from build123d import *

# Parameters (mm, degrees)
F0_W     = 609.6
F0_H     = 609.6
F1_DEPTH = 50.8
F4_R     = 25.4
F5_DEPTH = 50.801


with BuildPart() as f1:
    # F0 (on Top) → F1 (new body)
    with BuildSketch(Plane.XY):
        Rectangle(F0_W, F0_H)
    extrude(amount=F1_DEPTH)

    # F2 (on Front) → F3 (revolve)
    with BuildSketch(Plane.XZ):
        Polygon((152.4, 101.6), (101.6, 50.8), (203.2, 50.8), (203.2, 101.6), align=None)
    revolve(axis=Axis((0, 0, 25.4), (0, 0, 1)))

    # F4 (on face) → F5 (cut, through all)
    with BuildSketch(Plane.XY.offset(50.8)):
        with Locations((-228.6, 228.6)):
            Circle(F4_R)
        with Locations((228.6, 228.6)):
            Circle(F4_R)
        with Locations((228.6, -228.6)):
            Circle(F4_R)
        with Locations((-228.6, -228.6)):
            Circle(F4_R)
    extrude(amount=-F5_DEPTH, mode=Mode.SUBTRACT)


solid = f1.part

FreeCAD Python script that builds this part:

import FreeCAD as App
import Part
import Sketcher
Q = App.Units.Quantity

doc = App.newDocument("Part")
params = doc.addObject("Spreadsheet::Sheet", "Params")
for row, (alias, value) in enumerate([
    ("sketch1_width", "24 in"),
    ("pad1_length", "2 in"),
    ("sketch2_width", "4 in"),
    ("sketch2_width2", "2 in"),
    ("revolution_angle", "360 deg"),
    ("sketch3_diameter", "2 in"),
], start=1):
    params.set(f"A{row}", alias)
    params.set(f"B{row}", "=" + value)
    params.setAlias(f"B{row}", alias)

body = doc.addObject("PartDesign::Body", "Body")

sketch1 = body.newObject("Sketcher::SketchObject", "Sketch")
sketch1.AttachmentSupport = (doc.getObject("XY_Plane"), [""])
sketch1.MapMode = "FlatFace"
sketch1.addGeometry(Part.LineSegment(App.Vector(-305, 305, 0), App.Vector(-305, -305, 0)), False)
sketch1.addGeometry(Part.LineSegment(App.Vector(-305, -305, 0), App.Vector(305, -305, 0)), False)
sketch1.addGeometry(Part.LineSegment(App.Vector(305, -305, 0), App.Vector(305, 305, 0)), False)
sketch1.addGeometry(Part.LineSegment(App.Vector(305, 305, 0), App.Vector(-305, 305, 0)), False)
sketch1.addConstraint(Sketcher.Constraint("Coincident", 0, 2, 1, 1))
sketch1.addConstraint(Sketcher.Constraint("Coincident", 1, 2, 2, 1))
sketch1.addConstraint(Sketcher.Constraint("Coincident", 2, 2, 3, 1))
sketch1.addConstraint(Sketcher.Constraint("Coincident", 3, 2, 0, 1))
sketch1.addConstraint(Sketcher.Constraint("Vertical", 0))
sketch1.addConstraint(Sketcher.Constraint("Horizontal", 1))
sketch1.addConstraint(Sketcher.Constraint("Vertical", 2))
sketch1.addConstraint(Sketcher.Constraint("Horizontal", 3))
sketch1.addConstraint(Sketcher.Constraint("Symmetric", 0, 2, 2, 2, -1, 1))
sketch1.addConstraint(Sketcher.Constraint("Equal", 3, 0))
sketch1.addConstraint(Sketcher.Constraint("DistanceX", 1, 1, 1, 2, Q("24 in")))
sketch1.setExpression("Constraints[10]", "Params.sketch1_width")
pad1 = body.newObject("PartDesign::Pad", "Pad")
pad1.Profile = sketch1
pad1.setExpression("Length", "Params.pad1_length")

sketch2 = body.newObject("Sketcher::SketchObject", "Sketch001")
sketch2.AttachmentSupport = (doc.getObject("XZ_Plane"), [""])
sketch2.MapMode = "FlatFace"
sketch2.addGeometry(Part.LineSegment(App.Vector(152, 102, 0), App.Vector(102, 51, 0)), False)
sketch2.addGeometry(Part.LineSegment(App.Vector(102, 51, 0), App.Vector(203, 51, 0)), False)
sketch2.addGeometry(Part.LineSegment(App.Vector(203, 51, 0), App.Vector(203, 102, 0)), False)
sketch2.addGeometry(Part.LineSegment(App.Vector(203, 102, 0), App.Vector(152, 102, 0)), False)
sketch2.addConstraint(Sketcher.Constraint("Coincident", 0, 2, 1, 1))
sketch2.addConstraint(Sketcher.Constraint("Coincident", 1, 2, 2, 1))
sketch2.addConstraint(Sketcher.Constraint("Coincident", 2, 2, 3, 1))
sketch2.addConstraint(Sketcher.Constraint("Coincident", 3, 2, 0, 1))
sketch2.addConstraint(Sketcher.Constraint("Horizontal", 1))
sketch2.addConstraint(Sketcher.Constraint("Vertical", 2))
sketch2.addConstraint(Sketcher.Constraint("Horizontal", 3))
sketch2.addConstraint(Sketcher.Constraint("Equal", 3, 2))
sketch2.addConstraint(Sketcher.Constraint("DistanceX", 1, 1, 1, 2, Q("4 in")))
sketch2.addConstraint(Sketcher.Constraint("DistanceX", 3, 2, 3, 1, Q("2 in")))
sketch2.addConstraint(Sketcher.Constraint("DistanceX", -1, 1, 0, 2, Q("4 in")))
sketch2.addConstraint(Sketcher.Constraint("DistanceY", -1, 1, 0, 2, Q("2 in")))
sketch2.setExpression("Constraints[8]", "Params.sketch2_width")
sketch2.setExpression("Constraints[9]", "Params.sketch2_width2")
revolution = body.newObject("PartDesign::Revolution", "Revolution")
revolution.Profile = sketch2
revolution.ReferenceAxis = (sketch2, ["V_Axis"])
revolution.setExpression("Angle", "Params.revolution_angle")

sketch3 = body.newObject("Sketcher::SketchObject", "Sketch002")
sketch3.AttachmentSupport = (doc.getObject("XY_Plane"), [""])
sketch3.MapMode = "FlatFace"
sketch3.AttachmentOffset = App.Placement(App.Vector(0, 0, 2 * 25.4), App.Rotation())
sketch3.addGeometry(Part.Circle(App.Vector(-229, 229, 0), App.Vector(0, 0, 1), 25), False)
sketch3.addGeometry(Part.Circle(App.Vector(229, 229, 0), App.Vector(0, 0, 1), 25), False)
sketch3.addGeometry(Part.Circle(App.Vector(229, -229, 0), App.Vector(0, 0, 1), 25), False)
sketch3.addGeometry(Part.Circle(App.Vector(-229, -229, 0), App.Vector(0, 0, 1), 25), False)
sketch3.addConstraint(Sketcher.Constraint("Equal", 0, 1))
sketch3.addConstraint(Sketcher.Constraint("Equal", 1, 2))
sketch3.addConstraint(Sketcher.Constraint("Equal", 2, 3))
sketch3.addConstraint(Sketcher.Constraint("Symmetric", 0, 3, 2, 3, -1, 1))
sketch3.addConstraint(Sketcher.Constraint("Symmetric", 1, 3, 3, 3, -1, 1))
sketch3.addConstraint(Sketcher.Constraint("Symmetric", 0, 3, 1, 3, -2))
sketch3.addConstraint(Sketcher.Constraint("Diameter", 0, Q("2 in")))
sketch3.addConstraint(Sketcher.Constraint("DistanceX", 0, 3, -1, 1, Q("9 in")))
sketch3.addConstraint(Sketcher.Constraint("DistanceY", -1, 1, 0, 3, Q("9 in")))
sketch3.setExpression("Constraints[6]", "Params.sketch3_diameter")
pocket1 = body.newObject("PartDesign::Pocket", "Pocket")
pocket1.Profile = sketch3
pocket1.Type = "ThroughAll"

doc.recompute()
